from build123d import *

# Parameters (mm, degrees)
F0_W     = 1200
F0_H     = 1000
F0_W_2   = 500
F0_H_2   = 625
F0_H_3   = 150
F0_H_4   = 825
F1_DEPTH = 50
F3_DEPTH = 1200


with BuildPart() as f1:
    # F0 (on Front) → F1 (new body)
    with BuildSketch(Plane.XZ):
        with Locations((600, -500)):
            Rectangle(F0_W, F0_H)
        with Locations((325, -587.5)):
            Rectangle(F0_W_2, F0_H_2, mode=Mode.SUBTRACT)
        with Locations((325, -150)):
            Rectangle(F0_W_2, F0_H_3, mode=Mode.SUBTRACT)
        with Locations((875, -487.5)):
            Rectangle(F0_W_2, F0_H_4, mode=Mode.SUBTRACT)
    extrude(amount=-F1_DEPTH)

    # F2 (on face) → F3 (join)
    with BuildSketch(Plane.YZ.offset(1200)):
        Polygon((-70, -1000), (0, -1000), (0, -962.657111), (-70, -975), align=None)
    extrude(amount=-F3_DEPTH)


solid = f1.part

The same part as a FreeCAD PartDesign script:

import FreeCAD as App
import Part
import Sketcher
from FreeCAD import Vector
Q = App.Units.Quantity

doc = App.newDocument("Part")
body = doc.addObject("PartDesign::Body", "Body")

# Sketch on XZ plane
sketch1 = doc.addObject("Sketcher::SketchObject", "Sketch")
body.addObject(sketch1)
sketch1.AttachmentSupport = (doc.XZ_Plane, [""])
sketch1.MapMode = "FlatFace"
sketch1.addGeometry(Part.LineSegment(Vector(0, 0, 0), Vector(0, -1000, 0)), False)
sketch1.addGeometry(Part.LineSegment(Vector(0, -1000, 0), Vector(1200, -1000, 0)), False)
sketch1.addGeometry(Part.LineSegment(Vector(1200, -1000, 0), Vector(1200, 0, 0)), False)
sketch1.addGeometry(Part.LineSegment(Vector(1200, 0, 0), Vector(0, 0, 0)), False)
sketch1.addGeometry(Part.LineSegment(Vector(575, -900, 0), Vector(75, -900, 0)), False)
sketch1.addGeometry(Part.LineSegment(Vector(75, -900, 0), Vector(75, -275, 0)), False)
sketch1.addGeometry(Part.LineSegment(Vector(75, -275, 0), Vector(575, -275, 0)), False)
sketch1.addGeometry(Part.LineSegment(Vector(575, -275, 0), Vector(575, -900, 0)), False)
sketch1.addGeometry(Part.LineSegment(Vector(575, -225, 0), Vector(75, -225, 0)), False)
sketch1.addGeometry(Part.LineSegment(Vector(75, -225, 0), Vector(75, -75, 0)), False)
sketch1.addGeometry(Part.LineSegment(Vector(75, -75, 0), Vector(575, -75, 0)), False)
sketch1.addGeometry(Part.LineSegment(Vector(575, -75, 0), Vector(575, -225, 0)), False)
sketch1.addGeometry(Part.LineSegment(Vector(1125, -900, 0), Vector(625, -900, 0)), False)
sketch1.addGeometry(Part.LineSegment(Vector(625, -900, 0), Vector(625, -75, 0)), False)
sketch1.addGeometry(Part.LineSegment(Vector(625, -75, 0), Vector(1125, -75, 0)), False)
sketch1.addGeometry(Part.LineSegment(Vector(1125, -75, 0), Vector(1125, -900, 0)), False)
sketch1.addConstraint(Sketcher.Constraint("Coincident", 0, 2, 1, 1))
sketch1.addConstraint(Sketcher.Constraint("Coincident", 1, 2, 2, 1))
sketch1.addConstraint(Sketcher.Constraint("Coincident", 2, 2, 3, 1))
sketch1.addConstraint(Sketcher.Constraint("Coincident", 3, 2, 0, 1))
sketch1.addConstraint(Sketcher.Constraint("Coincident", 4, 2, 5, 1))
sketch1.addConstraint(Sketcher.Constraint("Coincident", 5, 2, 6, 1))
sketch1.addConstraint(Sketcher.Constraint("Coincident", 6, 2, 7, 1))
sketch1.addConstraint(Sketcher.Constraint("Coincident", 7, 2, 4, 1))
sketch1.addConstraint(Sketcher.Constraint("Coincident", 8, 2, 9, 1))
sketch1.addConstraint(Sketcher.Constraint("Coincident", 9, 2, 10, 1))
sketch1.addConstraint(Sketcher.Constraint("Coincident", 10, 2, 11, 1))
sketch1.addConstraint(Sketcher.Constraint("Coincident", 11, 2, 8, 1))
sketch1.addConstraint(Sketcher.Constraint("Coincident", 12, 2, 13, 1))
sketch1.addConstraint(Sketcher.Constraint("Coincident", 13, 2, 14, 1))
sketch1.addConstraint(Sketcher.Constraint("Coincident", 14, 2, 15, 1))
sketch1.addConstraint(Sketcher.Constraint("Coincident", 15, 2, 12, 1))
sketch1.addConstraint(Sketcher.Constraint("Vertical", 0))
sketch1.addConstraint(Sketcher.Constraint("Horizontal", 1))
sketch1.addConstraint(Sketcher.Constraint("Vertical", 2))
sketch1.addConstraint(Sketcher.Constraint("Horizontal", 3))
sketch1.addConstraint(Sketcher.Constraint("Horizontal", 4))
sketch1.addConstraint(Sketcher.Constraint("Vertical", 5))
sketch1.addConstraint(Sketcher.Constraint("Horizontal", 6))
sketch1.addConstraint(Sketcher.Constraint("Vertical", 7))
sketch1.addConstraint(Sketcher.Constraint("Horizontal", 8))
sketch1.addConstraint(Sketcher.Constraint("Vertical", 9))
sketch1.addConstraint(Sketcher.Constraint("Horizontal", 10))
sketch1.addConstraint(Sketcher.Constraint("Vertical", 11))
sketch1.addConstraint(Sketcher.Constraint("Horizontal", 12))
sketch1.addConstraint(Sketcher.Constraint("Vertical", 13))
sketch1.addConstraint(Sketcher.Constraint("Horizontal", 14))
sketch1.addConstraint(Sketcher.Constraint("Vertical", 15))
sketch1.addConstraint(Sketcher.Constraint("Coincident", 3, 2, -1, 1))
sketch1.addConstraint(Sketcher.Constraint("Horizontal", 7, 2, 12, 2))
sketch1.addConstraint(Sketcher.Constraint("Horizontal", 10, 2, 13, 2))
sketch1.addConstraint(Sketcher.Constraint("Vertical", 5, 2, 8, 2))
sketch1.addConstraint(Sketcher.Constraint("Vertical", 7, 2, 10, 2))
sketch1.addConstraint(Sketcher.Constraint("Equal", 10, 12))
sketch1.addConstraint(Sketcher.Constraint("DistanceX", 1, 1, 1, 2, Q("1200 mm")))
sketch1.addConstraint(Sketcher.Constraint("DistanceX", 4, 2, 4, 1, Q("500 mm")))
sketch1.addConstraint(Sketcher.Constraint("DistanceY", 0, 2, 0, 1, Q("1000 mm")))
sketch1.addConstraint(Sketcher.Constraint("DistanceY", 5, 1, 5, 2, Q("625 mm")))
sketch1.addConstraint(Sketcher.Constraint("DistanceY", 9, 1, 9, 2, Q("150 mm")))
sketch1.addConstraint(Sketcher.Constraint("DistanceY", 13, 1, 13, 2, Q("825 mm")))
sketch1.addConstraint(Sketcher.Constraint("DistanceX", -1, 1, 4, 2, Q("75 mm")))
sketch1.addConstraint(Sketcher.Constraint("DistanceY", 4, 2, -1, 1, Q("900 mm")))
sketch1.addConstraint(Sketcher.Constraint("DistanceX", -1, 1, 12, 2, Q("625 mm")))
pad1 = doc.addObject("PartDesign::Pad", "Pad")
body.addObject(pad1)
pad1.Profile = sketch1
pad1.Length = 50
pad1.Reversed = True

# Sketch on YZ plane
sketch2 = doc.addObject("Sketcher::SketchObject", "Sketch001")
body.addObject(sketch2)
sketch2.AttachmentSupport = (doc.YZ_Plane, [""])
sketch2.MapMode = "FlatFace"
sketch2.AttachmentOffset = App.Placement(Vector(0, 0, 1200), App.Rotation())
sketch2.addGeometry(Part.LineSegment(Vector(-70, -1000, 0), Vector(0, -1000, 0)), False)
sketch2.addGeometry(Part.LineSegment(Vector(0, -1000, 0), Vector(0, -963, 0)), False)
sketch2.addGeometry(Part.LineSegment(Vector(0, -963, 0), Vector(-70, -975, 0)), False)
sketch2.addGeometry(Part.LineSegment(Vector(-70, -975, 0), Vector(-70, -1000, 0)), False)
sketch2.addConstraint(Sketcher.Constraint("Coincident", 0, 2, 1, 1))
sketch2.addConstraint(Sketcher.Constraint("Coincident", 1, 2, 2, 1))
sketch2.addConstraint(Sketcher.Constraint("Coincident", 2, 2, 3, 1))
sketch2.addConstraint(Sketcher.Constraint("Coincident", 3, 2, 0, 1))
sketch2.addConstraint(Sketcher.Constraint("Horizontal", 0))
sketch2.addConstraint(Sketcher.Constraint("Vertical", 1))
sketch2.addConstraint(Sketcher.Constraint("Vertical", 3))
sketch2.addConstraint(Sketcher.Constraint("PointOnObject", 0, 2, -2))
sketch2.addConstraint(Sketcher.Constraint("DistanceX", 0, 1, 0, 2, Q("70 mm")))
sketch2.addConstraint(Sketcher.Constraint("DistanceY", 3, 2, 3, 1, Q("25 mm")))
sketch2.addConstraint(Sketcher.Constraint("Angle", 2, Q("-170 deg")))
sketch2.addConstraint(Sketcher.Constraint("DistanceY", 0, 2, -1, 1, Q("1000 mm")))
pad2 = doc.addObject("PartDesign::Pad", "Pad001")
body.addObject(pad2)
pad2.Profile = sketch2
pad2.Length = 1200
pad2.Reversed = True

doc.recompute()
